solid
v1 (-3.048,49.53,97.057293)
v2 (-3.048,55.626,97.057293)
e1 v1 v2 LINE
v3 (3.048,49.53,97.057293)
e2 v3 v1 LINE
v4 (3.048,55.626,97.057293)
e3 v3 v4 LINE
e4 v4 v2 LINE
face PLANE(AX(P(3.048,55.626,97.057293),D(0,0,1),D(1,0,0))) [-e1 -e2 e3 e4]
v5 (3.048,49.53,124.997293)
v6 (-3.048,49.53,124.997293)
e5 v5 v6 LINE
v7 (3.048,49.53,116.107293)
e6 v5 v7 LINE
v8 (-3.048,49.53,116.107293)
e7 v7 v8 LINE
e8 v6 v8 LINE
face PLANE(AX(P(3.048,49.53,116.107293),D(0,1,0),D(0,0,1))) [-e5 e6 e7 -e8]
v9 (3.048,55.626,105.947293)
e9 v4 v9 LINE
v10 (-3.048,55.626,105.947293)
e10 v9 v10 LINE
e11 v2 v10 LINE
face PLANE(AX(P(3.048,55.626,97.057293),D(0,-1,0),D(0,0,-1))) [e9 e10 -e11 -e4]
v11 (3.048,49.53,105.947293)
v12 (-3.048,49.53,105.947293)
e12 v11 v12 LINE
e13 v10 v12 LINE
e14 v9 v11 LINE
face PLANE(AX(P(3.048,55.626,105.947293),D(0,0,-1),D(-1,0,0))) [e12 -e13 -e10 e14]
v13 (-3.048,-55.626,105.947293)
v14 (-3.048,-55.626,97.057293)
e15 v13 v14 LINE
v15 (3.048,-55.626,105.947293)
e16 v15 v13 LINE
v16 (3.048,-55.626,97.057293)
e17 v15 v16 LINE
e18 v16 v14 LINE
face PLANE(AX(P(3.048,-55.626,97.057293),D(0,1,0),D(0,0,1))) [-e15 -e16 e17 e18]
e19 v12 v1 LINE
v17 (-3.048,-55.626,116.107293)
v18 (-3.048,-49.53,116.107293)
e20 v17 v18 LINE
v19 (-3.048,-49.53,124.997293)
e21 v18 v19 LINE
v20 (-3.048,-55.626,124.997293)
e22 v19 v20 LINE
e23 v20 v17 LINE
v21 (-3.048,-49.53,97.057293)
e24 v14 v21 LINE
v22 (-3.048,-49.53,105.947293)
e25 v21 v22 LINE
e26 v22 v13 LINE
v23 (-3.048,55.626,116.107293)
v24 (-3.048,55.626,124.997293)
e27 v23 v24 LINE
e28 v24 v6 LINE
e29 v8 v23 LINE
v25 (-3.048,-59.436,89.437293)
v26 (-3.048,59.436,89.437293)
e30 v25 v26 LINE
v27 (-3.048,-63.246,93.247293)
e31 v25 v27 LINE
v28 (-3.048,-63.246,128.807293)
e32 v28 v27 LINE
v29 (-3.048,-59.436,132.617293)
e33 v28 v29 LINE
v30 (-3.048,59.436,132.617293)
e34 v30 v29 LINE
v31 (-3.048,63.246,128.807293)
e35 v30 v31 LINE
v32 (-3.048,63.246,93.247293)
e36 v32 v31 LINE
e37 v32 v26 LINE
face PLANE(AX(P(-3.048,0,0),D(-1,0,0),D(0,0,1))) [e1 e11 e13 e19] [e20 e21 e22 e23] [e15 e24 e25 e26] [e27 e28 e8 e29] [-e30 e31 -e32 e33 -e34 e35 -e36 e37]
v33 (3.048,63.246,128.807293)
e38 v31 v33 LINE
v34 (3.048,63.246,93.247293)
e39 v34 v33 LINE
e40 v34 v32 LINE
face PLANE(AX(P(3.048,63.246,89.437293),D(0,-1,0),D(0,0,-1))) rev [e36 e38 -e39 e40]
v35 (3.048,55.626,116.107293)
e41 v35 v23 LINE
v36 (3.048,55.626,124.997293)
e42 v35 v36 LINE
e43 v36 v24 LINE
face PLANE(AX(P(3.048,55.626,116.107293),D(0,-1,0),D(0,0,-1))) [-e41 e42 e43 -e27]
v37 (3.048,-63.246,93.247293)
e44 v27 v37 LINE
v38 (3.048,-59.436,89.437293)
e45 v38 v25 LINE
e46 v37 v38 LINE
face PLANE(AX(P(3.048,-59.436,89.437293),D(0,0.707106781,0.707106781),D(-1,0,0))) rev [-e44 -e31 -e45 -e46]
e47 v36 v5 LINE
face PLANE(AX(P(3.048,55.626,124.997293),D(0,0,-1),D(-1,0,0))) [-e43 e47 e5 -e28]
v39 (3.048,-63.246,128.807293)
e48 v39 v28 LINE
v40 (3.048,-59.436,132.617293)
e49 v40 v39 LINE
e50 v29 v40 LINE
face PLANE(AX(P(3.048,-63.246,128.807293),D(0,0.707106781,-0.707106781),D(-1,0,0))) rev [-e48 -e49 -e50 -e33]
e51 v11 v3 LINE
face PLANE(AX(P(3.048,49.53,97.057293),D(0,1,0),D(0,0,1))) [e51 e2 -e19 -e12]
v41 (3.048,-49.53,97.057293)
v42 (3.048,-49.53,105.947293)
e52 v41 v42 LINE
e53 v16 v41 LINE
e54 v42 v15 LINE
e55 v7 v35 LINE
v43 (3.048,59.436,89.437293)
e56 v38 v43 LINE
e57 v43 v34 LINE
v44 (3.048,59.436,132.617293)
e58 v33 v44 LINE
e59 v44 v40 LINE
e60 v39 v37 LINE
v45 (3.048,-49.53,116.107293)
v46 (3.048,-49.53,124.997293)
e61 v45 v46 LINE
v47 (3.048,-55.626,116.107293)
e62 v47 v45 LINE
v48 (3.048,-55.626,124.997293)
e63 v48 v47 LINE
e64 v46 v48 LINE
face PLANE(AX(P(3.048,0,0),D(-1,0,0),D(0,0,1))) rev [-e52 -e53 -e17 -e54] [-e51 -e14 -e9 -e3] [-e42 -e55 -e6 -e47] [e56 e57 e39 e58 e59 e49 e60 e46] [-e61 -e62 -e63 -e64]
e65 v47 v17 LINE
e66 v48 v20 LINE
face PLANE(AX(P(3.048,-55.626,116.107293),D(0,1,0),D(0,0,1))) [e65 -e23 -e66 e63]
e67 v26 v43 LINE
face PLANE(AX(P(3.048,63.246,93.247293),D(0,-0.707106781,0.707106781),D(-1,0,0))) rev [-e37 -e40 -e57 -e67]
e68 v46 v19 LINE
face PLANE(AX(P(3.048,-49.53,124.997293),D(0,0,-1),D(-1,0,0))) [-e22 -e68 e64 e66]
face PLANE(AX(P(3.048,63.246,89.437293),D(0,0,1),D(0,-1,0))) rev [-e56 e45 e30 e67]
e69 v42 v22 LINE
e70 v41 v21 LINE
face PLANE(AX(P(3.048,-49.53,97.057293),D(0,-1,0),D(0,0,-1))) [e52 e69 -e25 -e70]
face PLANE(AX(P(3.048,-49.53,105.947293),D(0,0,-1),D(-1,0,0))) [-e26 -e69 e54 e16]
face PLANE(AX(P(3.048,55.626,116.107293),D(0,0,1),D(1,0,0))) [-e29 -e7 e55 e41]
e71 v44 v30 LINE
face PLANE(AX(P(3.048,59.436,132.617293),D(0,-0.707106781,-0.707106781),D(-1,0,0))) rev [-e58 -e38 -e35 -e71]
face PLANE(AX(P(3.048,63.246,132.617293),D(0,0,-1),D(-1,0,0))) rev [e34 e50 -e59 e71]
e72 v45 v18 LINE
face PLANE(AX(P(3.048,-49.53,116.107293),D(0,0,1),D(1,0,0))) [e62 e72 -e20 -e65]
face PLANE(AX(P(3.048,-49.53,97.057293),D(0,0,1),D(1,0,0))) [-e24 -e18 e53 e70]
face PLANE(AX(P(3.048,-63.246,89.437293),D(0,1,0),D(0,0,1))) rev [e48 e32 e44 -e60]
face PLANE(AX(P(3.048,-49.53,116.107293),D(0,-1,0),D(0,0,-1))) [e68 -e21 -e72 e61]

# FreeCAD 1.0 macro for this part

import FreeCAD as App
import Part
import Sketcher
Q = App.Units.Quantity


def edges_at(feature, points):
    """Names of the edges that pass closest to the given points."""
    edges = feature.Shape.Edges
    near = lambda p: min(range(len(edges)), key=lambda i: edges[i].distToShape(Part.Vertex(*p))[0])
    return sorted({f"Edge{near(p) + 1}" for p in points})


def add_polygon(sketch, points):
    """Adds a closed chain of lines whose ends are joined by coincident constraints."""
    first, n = sketch.GeometryCount, len(points)
    for a, b in zip(points, points[1:] + points[:1]):
        sketch.addGeometry(Part.LineSegment(App.Vector(*a, 0), App.Vector(*b, 0)), False)
    for i in range(n):
        sketch.addConstraint(Sketcher.Constraint("Coincident", first + i, 2, first + (i + 1) % n, 1))

doc = App.newDocument("Part")
body = doc.addObject("PartDesign::Body", "Body")

sketch1 = doc.addObject("Sketcher::SketchObject", "Sketch")
body.addObject(sketch1)
sketch1.AttachmentSupport = (doc.YZ_Plane, [""])
sketch1.MapMode = "FlatFace"
add_polygon(sketch1, [(63, 133), (-63, 133), (-63, 89), (63, 89)])
add_polygon(sketch1, [(-56, 116), (-56, 125), (-50, 125), (-50, 116)])
add_polygon(sketch1, [(-56, 97), (-56, 106), (-50, 106), (-50, 97)])
add_polygon(sketch1, [(50, 116), (50, 125), (56, 125), (56, 116)])
add_polygon(sketch1, [(50, 97), (50, 106), (56, 106), (56, 97)])
sketch1.addConstraint([
    Sketcher.Constraint("Horizontal", 0),
    Sketcher.Constraint("Vertical", 1),
    Sketcher.Constraint("Horizontal", 2),
    Sketcher.Constraint("Vertical", 3),
    Sketcher.Constraint("Vertical", 4),
    Sketcher.Constraint("Horizontal", 5),
    Sketcher.Constraint("Vertical", 6),
    Sketcher.Constraint("Horizontal", 7),
    Sketcher.Constraint("Vertical", 8),
    Sketcher.Constraint("Horizontal", 9),
    Sketcher.Constraint("Vertical", 10),
    Sketcher.Constraint("Horizontal", 11),
    Sketcher.Constraint("Vertical", 12),
    Sketcher.Constraint("Horizontal", 13),
    Sketcher.Constraint("Vertical", 14),
    Sketcher.Constraint("Horizontal", 15),
    Sketcher.Constraint("Vertical", 16),
    Sketcher.Constraint("Horizontal", 17),
    Sketcher.Constraint("Vertical", 18),
    Sketcher.Constraint("Horizontal", 19),
    Sketcher.Constraint("Symmetric", 5, 2, 12, 2, -2),
    Sketcher.Constraint("Symmetric", 7, 2, 14, 2, -2),
    Sketcher.Constraint("Symmetric", 9, 2, 16, 2, -2),
    Sketcher.Constraint("Symmetric", 11, 2, 18, 2, -2),
    Sketcher.Constraint("Vertical", 7, 2, 8, 2),
    Sketcher.Constraint("Vertical", 6, 2, 9, 2),
    Sketcher.Constraint("Equal", 6, 8),
    Sketcher.Constraint("DistanceY", 1, 2, 1, 1, Q("1.7 in")),
    Sketcher.Constraint("DistanceX", 0, 2, 0, 1, Q("4.98 in")),
    Sketcher.Constraint("DistanceX", 5, 1, 5, 2, Q("0.24 in")),
    Sketcher.Constraint("DistanceY", 4, 1, 4, 2, Q("0.35 in")),
    Sketcher.Constraint("DistanceX", 0, 2, 4, 2, Q("0.3 in")),
    Sketcher.Constraint("DistanceY", 4, 2, 0, 2, Q("0.3 in")),
    Sketcher.Constraint("DistanceY", 8, 2, 7, 2, Q("0.4 in")),
    Sketcher.Constraint("DistanceX", 5, 2, 12, 2, Q("3.9 in")),
    Sketcher.Constraint("DistanceY", -1, 1, 0, 2, 132.617293),
])
pad1 = doc.addObject("PartDesign::Pad", "Pad")
body.addObject(pad1)
pad1.Profile = sketch1
pad1.Length = Q("0.24 in")
pad1.Midplane = True
doc.recompute()

chamfer = doc.addObject("PartDesign::Chamfer", "Chamfer")
body.addObject(chamfer)
chamfer.Base = (pad1, edges_at(pad1, [
    (0, -63.246, 89.437),
    (0, -63.246, 132.617),
    (0, 63.246, 132.617),
    (0, 63.246, 89.437),
]))
chamfer.Size = Q("0.15 in")

doc.recompute()
